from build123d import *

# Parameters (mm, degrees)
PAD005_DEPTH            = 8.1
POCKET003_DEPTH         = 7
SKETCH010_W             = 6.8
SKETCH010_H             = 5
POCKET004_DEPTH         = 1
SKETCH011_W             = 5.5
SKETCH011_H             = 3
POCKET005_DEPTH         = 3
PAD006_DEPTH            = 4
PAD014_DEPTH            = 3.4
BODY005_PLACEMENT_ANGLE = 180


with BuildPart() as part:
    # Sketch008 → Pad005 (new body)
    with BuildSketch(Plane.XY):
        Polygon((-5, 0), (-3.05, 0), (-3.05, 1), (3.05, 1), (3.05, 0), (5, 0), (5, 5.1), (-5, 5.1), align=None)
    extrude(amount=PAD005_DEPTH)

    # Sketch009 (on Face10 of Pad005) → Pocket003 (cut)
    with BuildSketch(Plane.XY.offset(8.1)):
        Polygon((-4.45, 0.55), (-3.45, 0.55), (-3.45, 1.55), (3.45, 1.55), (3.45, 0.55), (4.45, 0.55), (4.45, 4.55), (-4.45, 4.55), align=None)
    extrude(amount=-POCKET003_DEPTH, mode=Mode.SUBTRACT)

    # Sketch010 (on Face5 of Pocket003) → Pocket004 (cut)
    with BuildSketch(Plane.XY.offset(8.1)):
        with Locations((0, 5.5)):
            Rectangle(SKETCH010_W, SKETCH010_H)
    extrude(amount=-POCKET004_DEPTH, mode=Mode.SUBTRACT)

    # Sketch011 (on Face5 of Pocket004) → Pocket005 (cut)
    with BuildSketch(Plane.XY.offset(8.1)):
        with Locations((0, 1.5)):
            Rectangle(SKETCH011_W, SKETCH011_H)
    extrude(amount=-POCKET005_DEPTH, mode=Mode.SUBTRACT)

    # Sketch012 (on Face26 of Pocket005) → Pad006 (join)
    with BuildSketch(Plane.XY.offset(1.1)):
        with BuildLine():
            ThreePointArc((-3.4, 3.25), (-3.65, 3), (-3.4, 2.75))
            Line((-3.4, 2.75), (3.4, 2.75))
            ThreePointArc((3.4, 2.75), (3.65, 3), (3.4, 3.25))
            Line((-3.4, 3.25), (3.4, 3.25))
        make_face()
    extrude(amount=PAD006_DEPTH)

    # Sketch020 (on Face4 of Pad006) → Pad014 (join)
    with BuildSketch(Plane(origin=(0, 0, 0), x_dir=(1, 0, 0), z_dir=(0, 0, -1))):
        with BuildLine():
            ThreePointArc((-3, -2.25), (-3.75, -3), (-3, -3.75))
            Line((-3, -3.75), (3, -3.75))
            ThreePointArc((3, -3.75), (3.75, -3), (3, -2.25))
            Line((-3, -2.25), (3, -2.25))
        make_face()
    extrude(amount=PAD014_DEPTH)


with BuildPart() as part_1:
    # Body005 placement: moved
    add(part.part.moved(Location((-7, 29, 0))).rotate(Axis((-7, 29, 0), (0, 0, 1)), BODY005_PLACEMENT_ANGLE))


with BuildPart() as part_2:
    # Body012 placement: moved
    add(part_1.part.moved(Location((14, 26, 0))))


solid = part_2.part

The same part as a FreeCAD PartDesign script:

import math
import FreeCAD as App
import Part
import Sketcher

V = App.Vector
Q = App.Units.Quantity

doc = App.newDocument("Part")
body = doc.addObject("PartDesign::Body", "Body")

# Sketch on XY plane
sketch1 = body.newObject("Sketcher::SketchObject", "Sketch")
sketch1.AttachmentSupport = (doc.getObject("XY_Plane"), [""])
sketch1.MapMode = "FlatFace"
sketch1.addGeometry(Part.LineSegment(V(-5, 0, 0), V(-3, 0, 0)), False)
sketch1.addGeometry(Part.LineSegment(V(-3, 0, 0), V(-3, 1, 0)), False)
sketch1.addGeometry(Part.LineSegment(V(-3, 1, 0), V(3, 1, 0)), False)
sketch1.addGeometry(Part.LineSegment(V(3, 1, 0), V(3, 0, 0)), False)
sketch1.addGeometry(Part.LineSegment(V(3, 0, 0), V(5, 0, 0)), False)
sketch1.addGeometry(Part.LineSegment(V(5, 0, 0), V(5, 5.1, 0)), False)
sketch1.addGeometry(Part.LineSegment(V(5, 5.1, 0), V(-5, 5.1, 0)), False)
sketch1.addGeometry(Part.LineSegment(V(-5, 5.1, 0), V(-5, 0, 0)), False)
sketch1.addConstraint(Sketcher.Constraint("Coincident", 0, 2, 1, 1))
sketch1.addConstraint(Sketcher.Constraint("Coincident", 1, 2, 2, 1))
sketch1.addConstraint(Sketcher.Constraint("Coincident", 2, 2, 3, 1))
sketch1.addConstraint(Sketcher.Constraint("Coincident", 3, 2, 4, 1))
sketch1.addConstraint(Sketcher.Constraint("Coincident", 4, 2, 5, 1))
sketch1.addConstraint(Sketcher.Constraint("Coincident", 5, 2, 6, 1))
sketch1.addConstraint(Sketcher.Constraint("Coincident", 6, 2, 7, 1))
sketch1.addConstraint(Sketcher.Constraint("Coincident", 7, 2, 0, 1))
sketch1.addConstraint(Sketcher.Constraint("Horizontal", 0))
sketch1.addConstraint(Sketcher.Constraint("Vertical", 1))
sketch1.addConstraint(Sketcher.Constraint("Horizontal", 2))
sketch1.addConstraint(Sketcher.Constraint("Vertical", 3))
sketch1.addConstraint(Sketcher.Constraint("Horizontal", 4))
sketch1.addConstraint(Sketcher.Constraint("Vertical", 5))
sketch1.addConstraint(Sketcher.Constraint("Horizontal", 6))
sketch1.addConstraint(Sketcher.Constraint("Vertical", 7))
sketch1.addConstraint(Sketcher.Constraint("Symmetric", 0, 2, 3, 2, -1, 1))
sketch1.addConstraint(Sketcher.Constraint("Symmetric", 4, 2, 7, 2, -2))
sketch1.addConstraint(Sketcher.Constraint("DistanceX", 6, 2, 6, 1, Q("10 mm")))
sketch1.addConstraint(Sketcher.Constraint("DistanceY", 1, 1, 1, 2, Q("1 mm")))
sketch1.addConstraint(Sketcher.Constraint("DistanceX", 2, 1, 2, 2, Q("6.1 mm")))
sketch1.addConstraint(Sketcher.Constraint("DistanceY", 5, 1, 5, 2, Q("5.1 mm")))
pad1 = body.newObject("PartDesign::Pad", "Pad")
pad1.Profile = sketch1
pad1.Length = 8.1

# Sketch on XY plane
sketch2 = body.newObject("Sketcher::SketchObject", "Sketch001")
sketch2.AttachmentSupport = (doc.getObject("XY_Plane"), [""])
sketch2.MapMode = "FlatFace"
sketch2.AttachmentOffset = App.Placement(V(0, 0, 8.1), App.Rotation())
sketch2.addGeometry(Part.LineSegment(V(-4.5, 0.6, 0), V(-3.5, 0.6, 0)), False)
sketch2.addGeometry(Part.LineSegment(V(-3.5, 0.6, 0), V(-3.5, 1.6, 0)), False)
sketch2.addGeometry(Part.LineSegment(V(-3.5, 1.6, 0), V(3.5, 1.6, 0)), False)
sketch2.addGeometry(Part.LineSegment(V(3.5, 1.6, 0), V(3.5, 0.6, 0)), False)
sketch2.addGeometry(Part.LineSegment(V(3.5, 0.6, 0), V(4.5, 0.6, 0)), False)
sketch2.addGeometry(Part.LineSegment(V(4.5, 0.6, 0), V(4.5, 4.5, 0)), False)
sketch2.addGeometry(Part.LineSegment(V(4.5, 4.5, 0), V(-4.5, 4.5, 0)), False)
sketch2.addGeometry(Part.LineSegment(V(-4.5, 4.5, 0), V(-4.5, 0.6, 0)), False)
sketch2.addConstraint(Sketcher.Constraint("Coincident", 0, 2, 1, 1))
sketch2.addConstraint(Sketcher.Constraint("Coincident", 1, 2, 2, 1))
sketch2.addConstraint(Sketcher.Constraint("Coincident", 2, 2, 3, 1))
sketch2.addConstraint(Sketcher.Constraint("Coincident", 3, 2, 4, 1))
sketch2.addConstraint(Sketcher.Constraint("Coincident", 4, 2, 5, 1))
sketch2.addConstraint(Sketcher.Constraint("Coincident", 5, 2, 6, 1))
sketch2.addConstraint(Sketcher.Constraint("Coincident", 6, 2, 7, 1))
sketch2.addConstraint(Sketcher.Constraint("Coincident", 7, 2, 0, 1))
sketch2.addConstraint(Sketcher.Constraint("Horizontal", 0))
sketch2.addConstraint(Sketcher.Constraint("Vertical", 1))
sketch2.addConstraint(Sketcher.Constraint("Horizontal", 2))
sketch2.addConstraint(Sketcher.Constraint("Vertical", 3))
sketch2.addConstraint(Sketcher.Constraint("Horizontal", 4))
sketch2.addConstraint(Sketcher.Constraint("Vertical", 5))
sketch2.addConstraint(Sketcher.Constraint("Horizontal", 6))
sketch2.addConstraint(Sketcher.Constraint("Vertical", 7))
sketch2.addConstraint(Sketcher.Constraint("Symmetric", 0, 2, 3, 2, -2))
sketch2.addConstraint(Sketcher.Constraint("Equal", 0, 4))
sketch2.addConstraint(Sketcher.Constraint("Equal", 4, 1))
sketch2.addConstraint(Sketcher.Constraint("DistanceX", 0, 1, 0, 2, Q("1 mm")))
sketch2.addConstraint(Sketcher.Constraint("DistanceY", 5, 1, 5, 2, Q("4 mm")))
sketch2.addConstraint(Sketcher.Constraint("DistanceX", 2, 1, 2, 2, Q("6.9 mm")))
sketch2.addConstraint(Sketcher.Constraint("DistanceY", -1, 1, 0, 2, Q("0.55 mm")))
pocket1 = body.newObject("PartDesign::Pocket", "Pocket")
pocket1.Profile = sketch2
pocket1.Length = 7

# Sketch on XY plane
sketch3 = body.newObject("Sketcher::SketchObject", "Sketch002")
sketch3.AttachmentSupport = (doc.getObject("XY_Plane"), [""])
sketch3.MapMode = "FlatFace"
sketch3.AttachmentOffset = App.Placement(V(0, 0, 8.1), App.Rotation())
sketch3.addGeometry(Part.LineSegment(V(-3, 8, 0), V(-3, 3, 0)), False)
sketch3.addGeometry(Part.LineSegment(V(-3, 3, 0), V(3, 3, 0)), False)
sketch3.addGeometry(Part.LineSegment(V(3, 3, 0), V(3, 8, 0)), False)
sketch3.addGeometry(Part.LineSegment(V(3, 8, 0), V(-3, 8, 0)), False)
sketch3.addConstraint(Sketcher.Constraint("Coincident", 0, 2, 1, 1))
sketch3.addConstraint(Sketcher.Constraint("Coincident", 1, 2, 2, 1))
sketch3.addConstraint(Sketcher.Constraint("Coincident", 2, 2, 3, 1))
sketch3.addConstraint(Sketcher.Constraint("Coincident", 3, 2, 0, 1))
sketch3.addConstraint(Sketcher.Constraint("Vertical", 0))
sketch3.addConstraint(Sketcher.Constraint("Horizontal", 1))
sketch3.addConstraint(Sketcher.Constraint("Vertical", 2))
sketch3.addConstraint(Sketcher.Constraint("Horizontal", 3))
sketch3.addConstraint(Sketcher.Constraint("DistanceY", 0, 2, 0, 1, Q("5 mm")))
sketch3.addConstraint(Sketcher.Constraint("DistanceX", 1, 1, 1, 2, Q("6.8 mm")))
sketch3.addConstraint(Sketcher.Constraint("DistanceY", -1, 1, 0, 2, Q("3 mm")))
sketch3.addConstraint(Sketcher.Constraint("DistanceX", 0, 2, -1, 1, Q("3.4 mm")))
pocket2 = body.newObject("PartDesign::Pocket", "Pocket001")
pocket2.Profile = sketch3
pocket2.Length = 1

# Sketch on XY plane
sketch4 = body.newObject("Sketcher::SketchObject", "Sketch003")
sketch4.AttachmentSupport = (doc.getObject("XY_Plane"), [""])
sketch4.MapMode = "FlatFace"
sketch4.AttachmentOffset = App.Placement(V(0, 0, 8.1), App.Rotation())
sketch4.addGeometry(Part.LineSegment(V(-2.8, 3, 0), V(-2.8, 0, 0)), False)
sketch4.addGeometry(Part.LineSegment(V(-2.8, 0, 0), V(2.8, 0, 0)), False)
sketch4.addGeometry(Part.LineSegment(V(2.8, 0, 0), V(2.8, 3, 0)), False)
sketch4.addGeometry(Part.LineSegment(V(2.8, 3, 0), V(-2.8, 3, 0)), False)
sketch4.addConstraint(Sketcher.Constraint("Coincident", 0, 2, 1, 1))
sketch4.addConstraint(Sketcher.Constraint("Coincident", 1, 2, 2, 1))
sketch4.addConstraint(Sketcher.Constraint("Coincident", 2, 2, 3, 1))
sketch4.addConstraint(Sketcher.Constraint("Coincident", 3, 2, 0, 1))
sketch4.addConstraint(Sketcher.Constraint("Vertical", 0))
sketch4.addConstraint(Sketcher.Constraint("Horizontal", 1))
sketch4.addConstraint(Sketcher.Constraint("Vertical", 2))
sketch4.addConstraint(Sketcher.Constraint("Horizontal", 3))
sketch4.addConstraint(Sketcher.Constraint("Symmetric", 0, 2, 1, 2, -1, 1))
sketch4.addConstraint(Sketcher.Constraint("DistanceY", 0, 2, 0, 1, Q("3 mm")))
sketch4.addConstraint(Sketcher.Constraint("DistanceX", 1, 1, 1, 2, Q("5.5 mm")))
pocket3 = body.newObject("PartDesign::Pocket", "Pocket002")
pocket3.Profile = sketch4
pocket3.Length = 3

# Sketch on XY plane
sketch5 = body.newObject("Sketcher::SketchObject", "Sketch004")
sketch5.AttachmentSupport = (doc.getObject("XY_Plane"), [""])
sketch5.MapMode = "FlatFace"
sketch5.AttachmentOffset = App.Placement(V(0, 0, 1.1), App.Rotation())
sketch5.addGeometry(Part.ArcOfCircle(Part.Circle(V(-3.4, 3, 0), V(0, 0, 1), 0.25), math.radians(90), math.radians(270)), False)
sketch5.addGeometry(Part.LineSegment(V(-3.4, 2.75, 0), V(3.4, 2.75, 0)), False)
sketch5.addGeometry(Part.ArcOfCircle(Part.Circle(V(3.4, 3, 0), V(0, 0, 1), 0.25), math.radians(-90), math.radians(90)), False)
sketch5.addGeometry(Part.LineSegment(V(3.4, 3.25, 0), V(-3.4, 3.25, 0)), False)
sketch5.addConstraint(Sketcher.Constraint("Tangent", 0, 2, 1, 1))
sketch5.addConstraint(Sketcher.Constraint("Tangent", 1, 2, 2, 1))
sketch5.addConstraint(Sketcher.Constraint("Tangent", 2, 2, 3, 1))
sketch5.addConstraint(Sketcher.Constraint("Tangent", 3, 2, 0, 1))
sketch5.addConstraint(Sketcher.Constraint("Horizontal", 1))
sketch5.addConstraint(Sketcher.Constraint("Horizontal", 3))
sketch5.addConstraint(Sketcher.Constraint("Radius", 0, Q("0.25 mm")))
sketch5.addConstraint(Sketcher.Constraint("DistanceX", 1, 1, 1, 2, Q("6.8 mm")))
sketch5.addConstraint(Sketcher.Constraint("DistanceY", -1, 1, 0, 3, Q("3 mm")))
sketch5.addConstraint(Sketcher.Constraint("DistanceX", 0, 3, -1, 1, Q("3.4 mm")))
pad2 = body.newObject("PartDesign::Pad", "Pad001")
pad2.Profile = sketch5
pad2.Length = 4

# Sketch on XY plane
sketch6 = body.newObject("Sketcher::SketchObject", "Sketch005")
sketch6.AttachmentSupport = (doc.getObject("XY_Plane"), [""])
sketch6.MapMode = "FlatFace"
sketch6.addGeometry(Part.ArcOfCircle(Part.Circle(V(-3, 3, 0), V(0, 0, 1), 0.8), math.radians(90), math.radians(270)), False)
sketch6.addGeometry(Part.LineSegment(V(-3, 3.8, 0), V(3, 3.8, 0)), False)
sketch6.addGeometry(Part.ArcOfCircle(Part.Circle(V(3, 3, 0), V(0, 0, 1), 0.8), math.radians(-90), math.radians(90)), False)
sketch6.addGeometry(Part.LineSegment(V(3, 2.2, 0), V(-3, 2.2, 0)), False)
sketch6.addConstraint(Sketcher.Constraint("Tangent", 0, 1, 1, 1))
sketch6.addConstraint(Sketcher.Constraint("Tangent", 1, 2, 2, 2))
sketch6.addConstraint(Sketcher.Constraint("Tangent", 2, 1, 3, 1))
sketch6.addConstraint(Sketcher.Constraint("Tangent", 3, 2, 0, 2))
sketch6.addConstraint(Sketcher.Constraint("Horizontal", 1))
sketch6.addConstraint(Sketcher.Constraint("Horizontal", 3))
sketch6.addConstraint(Sketcher.Constraint("DistanceX", 1, 1, 1, 2, Q("6 mm")))
sketch6.addConstraint(Sketcher.Constraint("Radius", 0, Q("0.75 mm")))
sketch6.addConstraint(Sketcher.Constraint("DistanceX", 0, 3, -1, 1, Q("3 mm")))
sketch6.addConstraint(Sketcher.Constraint("DistanceY", -1, 1, 0, 3, Q("3 mm")))
pad3 = body.newObject("PartDesign::Pad", "Pad002")
pad3.Profile = sketch6
pad3.Length = 3.4
pad3.Reversed = True
body2 = doc.addObject("PartDesign::Body", "Body001")
doc.recompute()

body.Placement = App.Placement(V(-7, 29, 0), App.Rotation(V(0, 0, 1), 180))
boolean = body2.newObject("PartDesign::Boolean", "Boolean")
boolean.Type = "Fuse"
boolean.addObjects([body])
body3 = doc.addObject("PartDesign::Body", "Body002")
doc.recompute()

body2.Placement = App.Placement(V(14, 26, 0), App.Rotation(V(0, 0, 1), 0))
boolean2 = body3.newObject("PartDesign::Boolean", "Boolean001")
boolean2.Type = "Fuse"
boolean2.addObjects([body2])

doc.recompute()
